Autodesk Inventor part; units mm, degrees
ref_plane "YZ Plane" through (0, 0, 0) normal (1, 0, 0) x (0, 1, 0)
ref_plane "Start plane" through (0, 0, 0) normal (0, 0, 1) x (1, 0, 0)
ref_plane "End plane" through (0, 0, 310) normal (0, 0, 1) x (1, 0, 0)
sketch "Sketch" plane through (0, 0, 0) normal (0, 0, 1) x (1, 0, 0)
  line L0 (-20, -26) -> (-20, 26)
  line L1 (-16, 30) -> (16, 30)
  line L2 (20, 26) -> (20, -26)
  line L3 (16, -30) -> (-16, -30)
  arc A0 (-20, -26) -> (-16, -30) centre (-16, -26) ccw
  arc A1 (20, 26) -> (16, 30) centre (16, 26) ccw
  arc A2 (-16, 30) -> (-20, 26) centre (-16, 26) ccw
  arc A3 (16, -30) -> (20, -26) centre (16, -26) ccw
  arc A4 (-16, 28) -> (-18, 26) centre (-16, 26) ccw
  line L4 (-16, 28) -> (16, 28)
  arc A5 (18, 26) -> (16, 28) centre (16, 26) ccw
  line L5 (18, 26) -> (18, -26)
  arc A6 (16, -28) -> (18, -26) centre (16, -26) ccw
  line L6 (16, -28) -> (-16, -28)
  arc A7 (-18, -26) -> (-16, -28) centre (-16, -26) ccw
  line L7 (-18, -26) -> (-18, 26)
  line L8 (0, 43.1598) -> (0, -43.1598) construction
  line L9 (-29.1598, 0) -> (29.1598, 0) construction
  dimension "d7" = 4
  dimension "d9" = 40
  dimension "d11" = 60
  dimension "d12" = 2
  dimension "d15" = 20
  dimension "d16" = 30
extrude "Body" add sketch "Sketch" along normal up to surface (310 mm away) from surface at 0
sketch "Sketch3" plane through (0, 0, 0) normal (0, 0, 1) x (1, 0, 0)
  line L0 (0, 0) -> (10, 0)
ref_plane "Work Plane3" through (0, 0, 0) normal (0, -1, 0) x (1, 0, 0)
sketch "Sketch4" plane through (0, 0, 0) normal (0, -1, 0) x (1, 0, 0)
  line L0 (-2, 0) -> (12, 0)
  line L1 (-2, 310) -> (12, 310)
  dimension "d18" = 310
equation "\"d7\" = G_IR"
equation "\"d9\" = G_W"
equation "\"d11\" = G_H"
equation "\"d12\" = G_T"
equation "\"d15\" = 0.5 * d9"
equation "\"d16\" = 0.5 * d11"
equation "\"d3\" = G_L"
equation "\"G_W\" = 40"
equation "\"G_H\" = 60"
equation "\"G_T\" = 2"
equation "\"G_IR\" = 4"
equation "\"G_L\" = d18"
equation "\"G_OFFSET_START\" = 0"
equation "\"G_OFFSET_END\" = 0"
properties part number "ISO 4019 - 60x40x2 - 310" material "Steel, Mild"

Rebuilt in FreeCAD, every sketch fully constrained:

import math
import FreeCAD as App
import Part
import Sketcher

V = App.Vector

doc = App.newDocument("Part")
body = doc.addObject("PartDesign::Body", "Body")

# Sketch on XY plane
sketch1 = body.newObject("Sketcher::SketchObject", "Sketch")
sketch1.AttachmentSupport = (doc.getObject("XY_Plane"), [""])
sketch1.MapMode = "FlatFace"
sketch1.addGeometry(Part.LineSegment(V(-20, 26, 0), V(-20, -26, 0)), False)
sketch1.addGeometry(Part.ArcOfCircle(Part.Circle(V(-16, -26, 0), V(0, 0, 1), 4), math.radians(180), math.radians(270)), False)
sketch1.addGeometry(Part.LineSegment(V(-16, -30, 0), V(16, -30, 0)), False)
sketch1.addGeometry(Part.ArcOfCircle(Part.Circle(V(16, -26, 0), V(0, 0, 1), 4), math.radians(-90), math.radians(0)), False)
sketch1.addGeometry(Part.LineSegment(V(20, -26, 0), V(20, 26, 0)), False)
sketch1.addGeometry(Part.ArcOfCircle(Part.Circle(V(16, 26, 0), V(0, 0, 1), 4), math.radians(0), math.radians(90)), False)
sketch1.addGeometry(Part.LineSegment(V(16, 30, 0), V(-16, 30, 0)), False)
sketch1.addGeometry(Part.ArcOfCircle(Part.Circle(V(-16, 26, 0), V(0, 0, 1), 4), math.radians(90), math.radians(180)), False)
sketch1.addGeometry(Part.ArcOfCircle(Part.Circle(V(-16, 26, 0), V(0, 0, 1), 2), math.radians(90), math.radians(180)), False)
sketch1.addGeometry(Part.LineSegment(V(-16, 28, 0), V(16, 28, 0)), False)
sketch1.addGeometry(Part.ArcOfCircle(Part.Circle(V(16, 26, 0), V(0, 0, 1), 2), math.radians(0), math.radians(90)), False)
sketch1.addGeometry(Part.LineSegment(V(18, 26, 0), V(18, -26, 0)), False)
sketch1.addGeometry(Part.ArcOfCircle(Part.Circle(V(16, -26, 0), V(0, 0, 1), 2), math.radians(-90), math.radians(0)), False)
sketch1.addGeometry(Part.LineSegment(V(16, -28, 0), V(-16, -28, 0)), False)
sketch1.addGeometry(Part.ArcOfCircle(Part.Circle(V(-16, -26, 0), V(0, 0, 1), 2), math.radians(180), math.radians(270)), False)
sketch1.addGeometry(Part.LineSegment(V(-18, -26, 0), V(-18, 26, 0)), False)
sketch1.addConstraint(Sketcher.Constraint("Tangent", 0, 2, 1, 1))
sketch1.addConstraint(Sketcher.Constraint("Tangent", 1, 2, 2, 1))
sketch1.addConstraint(Sketcher.Constraint("Tangent", 2, 2, 3, 1))
sketch1.addConstraint(Sketcher.Constraint("Tangent", 3, 2, 4, 1))
sketch1.addConstraint(Sketcher.Constraint("Tangent", 4, 2, 5, 1))
sketch1.addConstraint(Sketcher.Constraint("Tangent", 5, 2, 6, 1))
sketch1.addConstraint(Sketcher.Constraint("Tangent", 6, 2, 7, 1))
sketch1.addConstraint(Sketcher.Constraint("Tangent", 7, 2, 0, 1))
sketch1.addConstraint(Sketcher.Constraint("Tangent", 8, 1, 9, 1))
sketch1.addConstraint(Sketcher.Constraint("Tangent", 9, 2, 10, 2))
sketch1.addConstraint(Sketcher.Constraint("Tangent", 10, 1, 11, 1))
sketch1.addConstraint(Sketcher.Constraint("Tangent", 11, 2, 12, 2))
sketch1.addConstraint(Sketcher.Constraint("Tangent", 12, 1, 13, 1))
sketch1.addConstraint(Sketcher.Constraint("Tangent", 13, 2, 14, 2))
sketch1.addConstraint(Sketcher.Constraint("Tangent", 14, 1, 15, 1))
sketch1.addConstraint(Sketcher.Constraint("Tangent", 15, 2, 8, 2))
sketch1.addConstraint(Sketcher.Constraint("Vertical", 0))
sketch1.addConstraint(Sketcher.Constraint("Horizontal", 2))
sketch1.addConstraint(Sketcher.Constraint("Vertical", 4))
sketch1.addConstraint(Sketcher.Constraint("Horizontal", 6))
sketch1.addConstraint(Sketcher.Constraint("Horizontal", 9))
sketch1.addConstraint(Sketcher.Constraint("Vertical", 11))
sketch1.addConstraint(Sketcher.Constraint("Horizontal", 13))
sketch1.addConstraint(Sketcher.Constraint("Vertical", 15))
sketch1.addConstraint(Sketcher.Constraint("Coincident", 8, 3, 7, 3))
sketch1.addConstraint(Sketcher.Constraint("Coincident", 10, 3, 5, 3))
sketch1.addConstraint(Sketcher.Constraint("Coincident", 12, 3, 3, 3))
sketch1.addConstraint(Sketcher.Constraint("Equal", 1, 3))
sketch1.addConstraint(Sketcher.Constraint("Equal", 3, 5))
sketch1.addConstraint(Sketcher.Constraint("Equal", 5, 7))
sketch1.addConstraint(Sketcher.Constraint("Equal", 12, 14))
sketch1.addConstraint(Sketcher.Constraint("Symmetric", 1, 3, 5, 3, -1, 1))
sketch1.addConstraint(Sketcher.Constraint("Radius", 1, 4.0))
sketch1.addConstraint(Sketcher.Constraint("Radius", 8, 2.0))
sketch1.addConstraint(Sketcher.Constraint("DistanceX", 0, 2, -1, 1, 20.0))
sketch1.addConstraint(Sketcher.Constraint("DistanceY", 1, 2, -1, 1, 30.0))
pad1 = body.newObject("PartDesign::Pad", "Pad")
pad1.Profile = sketch1
pad1.Length = 310

doc.recompute()
